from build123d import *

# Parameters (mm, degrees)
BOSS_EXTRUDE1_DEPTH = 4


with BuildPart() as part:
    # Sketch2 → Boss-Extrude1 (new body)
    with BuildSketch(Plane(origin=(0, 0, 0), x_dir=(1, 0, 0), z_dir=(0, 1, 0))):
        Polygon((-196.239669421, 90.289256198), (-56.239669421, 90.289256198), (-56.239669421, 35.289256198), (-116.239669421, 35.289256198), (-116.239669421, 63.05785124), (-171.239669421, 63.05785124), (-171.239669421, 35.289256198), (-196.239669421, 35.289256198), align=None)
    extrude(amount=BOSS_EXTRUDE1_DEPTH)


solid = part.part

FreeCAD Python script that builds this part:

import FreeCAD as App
import Part
import Sketcher

V = App.Vector
Q = App.Units.Quantity

doc = App.newDocument("Part")
body = doc.addObject("PartDesign::Body", "Body")

# Sketch on XZ plane
sketch1 = body.newObject("Sketcher::SketchObject", "Sketch")
sketch1.AttachmentSupport = (doc.getObject("XZ_Plane"), [""])
sketch1.MapMode = "FlatFace"
sketch1.addGeometry(Part.LineSegment(V(-56.239669, -90.289256, 0), V(-196.239669, -90.289256, 0)), False)
sketch1.addGeometry(Part.LineSegment(V(-196.239669, -90.289256, 0), V(-196.239669, -35.289256, 0)), False)
sketch1.addGeometry(Part.LineSegment(V(-196.239669, -35.289256, 0), V(-171.239669, -35.289256, 0)), False)
sketch1.addGeometry(Part.LineSegment(V(-171.239669, -35.289256, 0), V(-171.239669, -63.057851, 0)), False)
sketch1.addGeometry(Part.LineSegment(V(-171.239669, -63.057851, 0), V(-116.239669, -63.057851, 0)), False)
sketch1.addGeometry(Part.LineSegment(V(-116.239669, -63.057851, 0), V(-116.239669, -35.289256, 0)), False)
sketch1.addGeometry(Part.LineSegment(V(-116.239669, -35.289256, 0), V(-56.239669, -35.289256, 0)), False)
sketch1.addGeometry(Part.LineSegment(V(-56.239669, -35.289256, 0), V(-56.239669, -90.289256, 0)), False)
sketch1.addConstraint(Sketcher.Constraint("Coincident", 0, 2, 1, 1))
sketch1.addConstraint(Sketcher.Constraint("Coincident", 1, 2, 2, 1))
sketch1.addConstraint(Sketcher.Constraint("Coincident", 2, 2, 3, 1))
sketch1.addConstraint(Sketcher.Constraint("Coincident", 3, 2, 4, 1))
sketch1.addConstraint(Sketcher.Constraint("Coincident", 4, 2, 5, 1))
sketch1.addConstraint(Sketcher.Constraint("Coincident", 5, 2, 6, 1))
sketch1.addConstraint(Sketcher.Constraint("Coincident", 6, 2, 7, 1))
sketch1.addConstraint(Sketcher.Constraint("Coincident", 7, 2, 0, 1))
sketch1.addConstraint(Sketcher.Constraint("Horizontal", 0))
sketch1.addConstraint(Sketcher.Constraint("Vertical", 1))
sketch1.addConstraint(Sketcher.Constraint("Horizontal", 2))
sketch1.addConstraint(Sketcher.Constraint("Vertical", 3))
sketch1.addConstraint(Sketcher.Constraint("Horizontal", 4))
sketch1.addConstraint(Sketcher.Constraint("Vertical", 5))
sketch1.addConstraint(Sketcher.Constraint("Horizontal", 6))
sketch1.addConstraint(Sketcher.Constraint("Vertical", 7))
sketch1.addConstraint(Sketcher.Constraint("Horizontal", 2, 2, 5, 2))
sketch1.addConstraint(Sketcher.Constraint("Equal", 4, 1))
sketch1.addConstraint(Sketcher.Constraint("DistanceX", 0, 2, 0, 1, Q("140 mm")))
sketch1.addConstraint(Sketcher.Constraint("DistanceX", 2, 1, 2, 2, Q("25 mm")))
sketch1.addConstraint(Sketcher.Constraint("DistanceX", 4, 1, 4, 2, Q("55 mm")))
sketch1.addConstraint(Sketcher.Constraint("DistanceY", 3, 2, 3, 1, Q("27.768595 mm")))
sketch1.addConstraint(Sketcher.Constraint("DistanceX", 0, 2, -1, 1, Q("196.239669 mm")))
sketch1.addConstraint(Sketcher.Constraint("DistanceY", 3, 2, -1, 1, Q("63.057851 mm")))
pad1 = body.newObject("PartDesign::Pad", "Pad")
pad1.Profile = sketch1
pad1.Length = 4
pad1.Reversed = True

doc.recompute()
